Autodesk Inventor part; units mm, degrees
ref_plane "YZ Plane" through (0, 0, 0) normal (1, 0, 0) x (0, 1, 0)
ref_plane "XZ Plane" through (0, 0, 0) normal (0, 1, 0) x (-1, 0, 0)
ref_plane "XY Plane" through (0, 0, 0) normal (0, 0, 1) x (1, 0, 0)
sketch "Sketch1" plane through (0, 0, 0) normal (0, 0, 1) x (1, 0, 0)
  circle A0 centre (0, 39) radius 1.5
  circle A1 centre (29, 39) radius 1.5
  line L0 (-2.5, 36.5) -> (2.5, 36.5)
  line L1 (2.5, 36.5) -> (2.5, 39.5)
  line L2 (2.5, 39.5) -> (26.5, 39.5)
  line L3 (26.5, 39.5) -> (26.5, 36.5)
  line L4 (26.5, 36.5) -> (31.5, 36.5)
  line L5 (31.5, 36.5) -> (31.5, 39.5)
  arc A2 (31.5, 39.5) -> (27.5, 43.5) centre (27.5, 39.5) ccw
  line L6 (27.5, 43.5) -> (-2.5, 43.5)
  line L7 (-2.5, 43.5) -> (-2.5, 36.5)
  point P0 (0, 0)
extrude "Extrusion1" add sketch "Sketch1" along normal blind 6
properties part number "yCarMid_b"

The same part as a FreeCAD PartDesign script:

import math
import FreeCAD as App
import Part
import Sketcher
from FreeCAD import Vector
Q = App.Units.Quantity

doc = App.newDocument("Part")
body = doc.addObject("PartDesign::Body", "Body")

sketch1 = body.newObject("Sketcher::SketchObject", "Sketch")
sketch1.AttachmentSupport = (doc.getObject("XY_Plane"), [""])
sketch1.MapMode = "FlatFace"
sketch1.addGeometry(Part.LineSegment(Vector(-2.5, 43.5, 0), Vector(-2.5, 36.5, 0)), False)
sketch1.addGeometry(Part.LineSegment(Vector(-2.5, 36.5, 0), Vector(2.5, 36.5, 0)), False)
sketch1.addGeometry(Part.LineSegment(Vector(2.5, 36.5, 0), Vector(2.5, 39.5, 0)), False)
sketch1.addGeometry(Part.LineSegment(Vector(2.5, 39.5, 0), Vector(26.5, 39.5, 0)), False)
sketch1.addGeometry(Part.LineSegment(Vector(26.5, 39.5, 0), Vector(26.5, 36.5, 0)), False)
sketch1.addGeometry(Part.LineSegment(Vector(26.5, 36.5, 0), Vector(31.5, 36.5, 0)), False)
sketch1.addGeometry(Part.LineSegment(Vector(31.5, 36.5, 0), Vector(31.5, 39.5, 0)), False)
sketch1.addGeometry(Part.ArcOfCircle(Part.Circle(Vector(27.5, 39.5, 0), Vector(0, 0, 1), 4), math.radians(0), math.radians(90)), False)
sketch1.addGeometry(Part.LineSegment(Vector(27.5, 43.5, 0), Vector(-2.5, 43.5, 0)), False)
sketch1.addGeometry(Part.Circle(Vector(0, 39, 0), Vector(0, 0, 1), 1.5), False)
sketch1.addGeometry(Part.Circle(Vector(29, 39, 0), Vector(0, 0, 1), 1.5), False)
sketch1.addConstraint(Sketcher.Constraint("Coincident", 0, 2, 1, 1))
sketch1.addConstraint(Sketcher.Constraint("Coincident", 1, 2, 2, 1))
sketch1.addConstraint(Sketcher.Constraint("Coincident", 2, 2, 3, 1))
sketch1.addConstraint(Sketcher.Constraint("Coincident", 3, 2, 4, 1))
sketch1.addConstraint(Sketcher.Constraint("Coincident", 4, 2, 5, 1))
sketch1.addConstraint(Sketcher.Constraint("Coincident", 5, 2, 6, 1))
sketch1.addConstraint(Sketcher.Constraint("Tangent", 6, 2, 7, 1))
sketch1.addConstraint(Sketcher.Constraint("Tangent", 7, 2, 8, 1))
sketch1.addConstraint(Sketcher.Constraint("Coincident", 8, 2, 0, 1))
sketch1.addConstraint(Sketcher.Constraint("Vertical", 0))
sketch1.addConstraint(Sketcher.Constraint("Horizontal", 1))
sketch1.addConstraint(Sketcher.Constraint("Vertical", 2))
sketch1.addConstraint(Sketcher.Constraint("Horizontal", 3))
sketch1.addConstraint(Sketcher.Constraint("Vertical", 4))
sketch1.addConstraint(Sketcher.Constraint("Horizontal", 5))
sketch1.addConstraint(Sketcher.Constraint("Vertical", 6))
sketch1.addConstraint(Sketcher.Constraint("Horizontal", 8))
sketch1.addConstraint(Sketcher.Constraint("Equal", 9, 10))
sketch1.addConstraint(Sketcher.Constraint("PointOnObject", 9, 3, -2))
sketch1.addConstraint(Sketcher.Constraint("Horizontal", 9, 3, 10, 3))
sketch1.addConstraint(Sketcher.Constraint("Horizontal", 7, 3, 2, 2))
sketch1.addConstraint(Sketcher.Constraint("Horizontal", 1, 2, 4, 2))
sketch1.addConstraint(Sketcher.Constraint("Equal", 1, 5))
sketch1.addConstraint(Sketcher.Constraint("Diameter", 9, Q("3 mm")))
sketch1.addConstraint(Sketcher.Constraint("Radius", 7, Q("4 mm")))
sketch1.addConstraint(Sketcher.Constraint("DistanceX", 1, 1, 1, 2, Q("5 mm")))
sketch1.addConstraint(Sketcher.Constraint("DistanceX", 3, 1, 3, 2, Q("24 mm")))
sketch1.addConstraint(Sketcher.Constraint("DistanceY", 0, 2, 0, 1, Q("7 mm")))
sketch1.addConstraint(Sketcher.Constraint("DistanceY", -1, 1, 9, 3, Q("39 mm")))
sketch1.addConstraint(Sketcher.Constraint("DistanceX", -1, 1, 10, 3, Q("29 mm")))
sketch1.addConstraint(Sketcher.Constraint("DistanceX", -1, 1, 7, 3, Q("27.5 mm")))
sketch1.addConstraint(Sketcher.Constraint("DistanceY", -1, 1, 7, 3, Q("39.5 mm")))
pad1 = body.newObject("PartDesign::Pad", "Pad")
pad1.Profile = sketch1
pad1.Length = 6

doc.recompute()
